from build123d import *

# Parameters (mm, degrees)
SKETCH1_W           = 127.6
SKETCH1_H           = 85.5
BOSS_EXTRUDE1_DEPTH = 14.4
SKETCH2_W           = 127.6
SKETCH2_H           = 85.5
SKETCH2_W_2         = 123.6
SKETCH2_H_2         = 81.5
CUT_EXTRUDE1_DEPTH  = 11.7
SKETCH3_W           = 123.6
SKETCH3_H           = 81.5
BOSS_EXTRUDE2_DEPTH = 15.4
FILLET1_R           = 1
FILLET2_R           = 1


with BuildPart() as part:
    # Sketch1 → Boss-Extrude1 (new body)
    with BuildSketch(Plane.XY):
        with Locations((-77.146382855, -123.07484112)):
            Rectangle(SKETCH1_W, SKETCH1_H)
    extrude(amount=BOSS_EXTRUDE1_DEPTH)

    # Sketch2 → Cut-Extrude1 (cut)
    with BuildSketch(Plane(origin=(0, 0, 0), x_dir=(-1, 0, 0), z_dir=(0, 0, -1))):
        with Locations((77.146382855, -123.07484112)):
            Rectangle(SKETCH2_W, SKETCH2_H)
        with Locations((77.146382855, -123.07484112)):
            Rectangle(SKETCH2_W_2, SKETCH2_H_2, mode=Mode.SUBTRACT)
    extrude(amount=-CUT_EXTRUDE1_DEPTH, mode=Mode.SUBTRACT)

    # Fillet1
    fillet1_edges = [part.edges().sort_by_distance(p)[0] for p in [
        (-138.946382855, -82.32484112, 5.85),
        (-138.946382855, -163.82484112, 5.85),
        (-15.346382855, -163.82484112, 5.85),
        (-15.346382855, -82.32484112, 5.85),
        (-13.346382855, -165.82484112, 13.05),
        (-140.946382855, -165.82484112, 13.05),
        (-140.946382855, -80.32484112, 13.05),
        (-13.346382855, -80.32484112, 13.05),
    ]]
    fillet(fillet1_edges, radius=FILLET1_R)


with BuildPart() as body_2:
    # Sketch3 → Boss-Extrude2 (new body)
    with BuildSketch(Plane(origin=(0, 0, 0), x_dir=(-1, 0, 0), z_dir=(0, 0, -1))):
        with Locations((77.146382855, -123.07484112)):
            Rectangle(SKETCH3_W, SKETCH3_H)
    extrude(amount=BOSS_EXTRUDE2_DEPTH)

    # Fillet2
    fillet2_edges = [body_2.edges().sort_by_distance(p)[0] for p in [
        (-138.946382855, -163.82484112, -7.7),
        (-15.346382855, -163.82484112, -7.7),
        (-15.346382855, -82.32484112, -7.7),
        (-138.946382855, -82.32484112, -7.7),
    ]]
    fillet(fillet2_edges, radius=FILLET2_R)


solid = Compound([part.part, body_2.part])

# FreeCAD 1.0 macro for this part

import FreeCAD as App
import Part
import Sketcher

V = App.Vector
Q = App.Units.Quantity


def edges_at(feature, points):
    """Names of the edges that pass closest to the given points."""
    edges = feature.Shape.Edges
    near = lambda p: min(range(len(edges)), key=lambda i: edges[i].distToShape(Part.Vertex(*p))[0])
    return sorted({f"Edge{near(p) + 1}" for p in points})

doc = App.newDocument("Part")
params = doc.addObject("Spreadsheet::Sheet", "Params")
for row, (alias, value) in enumerate([
    ("sketch1_width", "127.6 mm"),
    ("sketch1_height", "85.5 mm"),
    ("pad1_length", "14.4 mm"),
    ("sketch2_width", "127.6 mm"),
    ("sketch2_width2", "123.6 mm"),
    ("sketch2_height", "85.5 mm"),
    ("sketch2_height2", "81.5 mm"),
    ("pocket1_length", "11.7 mm"),
    ("fillet_radius", "1 mm"),
    ("sketch3_width", "123.6 mm"),
    ("sketch3_height", "81.5 mm"),
    ("pad2_length", "15.4 mm"),
    ("fillet2_radius", "1 mm"),
], start=1):
    params.set(f"A{row}", alias)
    params.set(f"B{row}", "=" + value)
    params.setAlias(f"B{row}", alias)

body = doc.addObject("PartDesign::Body", "Body")

# Sketch on XY plane
sketch1 = doc.addObject("Sketcher::SketchObject", "Sketch")
body.addObject(sketch1)
sketch1.AttachmentSupport = (doc.XY_Plane, [""])
sketch1.MapMode = "FlatFace"
sketch1.addGeometry(Part.LineSegment(V(-141, -80, 0), V(-141, -166, 0)), False)
sketch1.addGeometry(Part.LineSegment(V(-141, -166, 0), V(-13, -166, 0)), False)
sketch1.addGeometry(Part.LineSegment(V(-13, -166, 0), V(-13, -80, 0)), False)
sketch1.addGeometry(Part.LineSegment(V(-13, -80, 0), V(-141, -80, 0)), False)
sketch1.addConstraint(Sketcher.Constraint("Coincident", 0, 2, 1, 1))
sketch1.addConstraint(Sketcher.Constraint("Coincident", 1, 2, 2, 1))
sketch1.addConstraint(Sketcher.Constraint("Coincident", 2, 2, 3, 1))
sketch1.addConstraint(Sketcher.Constraint("Coincident", 3, 2, 0, 1))
sketch1.addConstraint(Sketcher.Constraint("Vertical", 0))
sketch1.addConstraint(Sketcher.Constraint("Horizontal", 1))
sketch1.addConstraint(Sketcher.Constraint("Vertical", 2))
sketch1.addConstraint(Sketcher.Constraint("Horizontal", 3))
sketch1.addConstraint(Sketcher.Constraint("DistanceX", 1, 1, 1, 2, Q("127.6 mm")))
sketch1.addConstraint(Sketcher.Constraint("DistanceY", 0, 2, 0, 1, Q("85.5 mm")))
sketch1.addConstraint(Sketcher.Constraint("DistanceY", 0, 2, -1, 1, Q("165.824841 mm")))
sketch1.addConstraint(Sketcher.Constraint("DistanceX", 0, 2, -1, 1, Q("140.946383 mm")))
sketch1.setExpression("Constraints[8]", "Params.sketch1_width")
sketch1.setExpression("Constraints[9]", "Params.sketch1_height")
pad1 = doc.addObject("PartDesign::Pad", "Pad")
body.addObject(pad1)
pad1.Profile = sketch1
pad1.setExpression("Length", "Params.pad1_length")

# Sketch on XY plane
sketch2 = doc.addObject("Sketcher::SketchObject", "Sketch001")
body.addObject(sketch2)
sketch2.AttachmentSupport = (doc.XY_Plane, [""])
sketch2.MapMode = "FlatFace"
sketch2.addGeometry(Part.LineSegment(V(-13, -80, 0), V(-13, -166, 0)), False)
sketch2.addGeometry(Part.LineSegment(V(-13, -166, 0), V(-141, -166, 0)), False)
sketch2.addGeometry(Part.LineSegment(V(-141, -166, 0), V(-141, -80, 0)), False)
sketch2.addGeometry(Part.LineSegment(V(-141, -80, 0), V(-13, -80, 0)), False)
sketch2.addGeometry(Part.LineSegment(V(-139, -164, 0), V(-15, -164, 0)), False)
sketch2.addGeometry(Part.LineSegment(V(-15, -164, 0), V(-15, -82, 0)), False)
sketch2.addGeometry(Part.LineSegment(V(-15, -82, 0), V(-139, -82, 0)), False)
sketch2.addGeometry(Part.LineSegment(V(-139, -82, 0), V(-139, -164, 0)), False)
sketch2.addConstraint(Sketcher.Constraint("Coincident", 0, 2, 1, 1))
sketch2.addConstraint(Sketcher.Constraint("Coincident", 1, 2, 2, 1))
sketch2.addConstraint(Sketcher.Constraint("Coincident", 2, 2, 3, 1))
sketch2.addConstraint(Sketcher.Constraint("Coincident", 3, 2, 0, 1))
sketch2.addConstraint(Sketcher.Constraint("Coincident", 4, 2, 5, 1))
sketch2.addConstraint(Sketcher.Constraint("Coincident", 5, 2, 6, 1))
sketch2.addConstraint(Sketcher.Constraint("Coincident", 6, 2, 7, 1))
sketch2.addConstraint(Sketcher.Constraint("Coincident", 7, 2, 4, 1))
sketch2.addConstraint(Sketcher.Constraint("Vertical", 0))
sketch2.addConstraint(Sketcher.Constraint("Horizontal", 1))
sketch2.addConstraint(Sketcher.Constraint("Vertical", 2))
sketch2.addConstraint(Sketcher.Constraint("Horizontal", 3))
sketch2.addConstraint(Sketcher.Constraint("Horizontal", 4))
sketch2.addConstraint(Sketcher.Constraint("Vertical", 5))
sketch2.addConstraint(Sketcher.Constraint("Horizontal", 6))
sketch2.addConstraint(Sketcher.Constraint("Vertical", 7))
sketch2.addConstraint(Sketcher.Constraint("DistanceX", 1, 2, 1, 1, Q("127.6 mm")))
sketch2.addConstraint(Sketcher.Constraint("DistanceX", 4, 1, 4, 2, Q("123.6 mm")))
sketch2.addConstraint(Sketcher.Constraint("DistanceY", 0, 2, 0, 1, Q("85.5 mm")))
sketch2.addConstraint(Sketcher.Constraint("DistanceY", 5, 1, 5, 2, Q("81.5 mm")))
sketch2.addConstraint(Sketcher.Constraint("DistanceX", 4, 2, 0, 2, Q("2 mm")))
sketch2.addConstraint(Sketcher.Constraint("DistanceY", 0, 2, 4, 2, Q("2 mm")))
sketch2.addConstraint(Sketcher.Constraint("DistanceY", 0, 2, -1, 1, Q("165.824841 mm")))
sketch2.addConstraint(Sketcher.Constraint("DistanceX", 0, 2, -1, 1, Q("13.346383 mm")))
sketch2.setExpression("Constraints[16]", "Params.sketch2_width")
sketch2.setExpression("Constraints[17]", "Params.sketch2_width2")
sketch2.setExpression("Constraints[18]", "Params.sketch2_height")
sketch2.setExpression("Constraints[19]", "Params.sketch2_height2")
pocket1 = doc.addObject("PartDesign::Pocket", "Pocket")
body.addObject(pocket1)
pocket1.Profile = sketch2
pocket1.setExpression("Length", "Params.pocket1_length")
pocket1.Reversed = True
doc.recompute()

fillet = doc.addObject("PartDesign::Fillet", "Fillet")
body.addObject(fillet)
fillet.Base = (pocket1, edges_at(pocket1, [
    (-138.946, -82.325, 5.85),
    (-138.946, -163.825, 5.85),
    (-15.346, -163.825, 5.85),
    (-15.346, -82.325, 5.85),
    (-13.346, -165.825, 13.05),
    (-140.946, -165.825, 13.05),
    (-140.946, -80.325, 13.05),
    (-13.346, -80.325, 13.05),
]))
fillet.setExpression("Radius", "Params.fillet_radius")
body2 = doc.addObject("PartDesign::Body", "Body001")

# Sketch on XY plane
sketch3 = doc.addObject("Sketcher::SketchObject", "Sketch002")
body2.addObject(sketch3)
sketch3.AttachmentSupport = (doc.getObject("XY_Plane001"), [""])
sketch3.MapMode = "FlatFace"
sketch3.addGeometry(Part.LineSegment(V(-15, -82, 0), V(-15, -164, 0)), False)
sketch3.addGeometry(Part.LineSegment(V(-15, -164, 0), V(-139, -164, 0)), False)
sketch3.addGeometry(Part.LineSegment(V(-139, -164, 0), V(-139, -82, 0)), False)
sketch3.addGeometry(Part.LineSegment(V(-139, -82, 0), V(-15, -82, 0)), False)
sketch3.addConstraint(Sketcher.Constraint("Coincident", 0, 2, 1, 1))
sketch3.addConstraint(Sketcher.Constraint("Coincident", 1, 2, 2, 1))
sketch3.addConstraint(Sketcher.Constraint("Coincident", 2, 2, 3, 1))
sketch3.addConstraint(Sketcher.Constraint("Coincident", 3, 2, 0, 1))
sketch3.addConstraint(Sketcher.Constraint("Vertical", 0))
sketch3.addConstraint(Sketcher.Constraint("Horizontal", 1))
sketch3.addConstraint(Sketcher.Constraint("Vertical", 2))
sketch3.addConstraint(Sketcher.Constraint("Horizontal", 3))
sketch3.addConstraint(Sketcher.Constraint("DistanceX", 1, 2, 1, 1, Q("123.6 mm")))
sketch3.addConstraint(Sketcher.Constraint("DistanceY", 0, 2, 0, 1, Q("81.5 mm")))
sketch3.addConstraint(Sketcher.Constraint("DistanceY", 0, 2, -1, 1, Q("163.824841 mm")))
sketch3.addConstraint(Sketcher.Constraint("DistanceX", 0, 2, -1, 1, Q("15.346383 mm")))
sketch3.setExpression("Constraints[8]", "Params.sketch3_width")
sketch3.setExpression("Constraints[9]", "Params.sketch3_height")
pad2 = doc.addObject("PartDesign::Pad", "Pad001")
body2.addObject(pad2)
pad2.Profile = sketch3
pad2.setExpression("Length", "Params.pad2_length")
pad2.Reversed = True
doc.recompute()

fillet2 = doc.addObject("PartDesign::Fillet", "Fillet001")
body2.addObject(fillet2)
fillet2.Base = (pad2, edges_at(pad2, [
    (-138.946, -163.825, -7.7),
    (-15.346, -163.825, -7.7),
    (-15.346, -82.325, -7.7),
    (-138.946, -82.325, -7.7),
]))
fillet2.setExpression("Radius", "Params.fillet2_radius")

doc.recompute()
